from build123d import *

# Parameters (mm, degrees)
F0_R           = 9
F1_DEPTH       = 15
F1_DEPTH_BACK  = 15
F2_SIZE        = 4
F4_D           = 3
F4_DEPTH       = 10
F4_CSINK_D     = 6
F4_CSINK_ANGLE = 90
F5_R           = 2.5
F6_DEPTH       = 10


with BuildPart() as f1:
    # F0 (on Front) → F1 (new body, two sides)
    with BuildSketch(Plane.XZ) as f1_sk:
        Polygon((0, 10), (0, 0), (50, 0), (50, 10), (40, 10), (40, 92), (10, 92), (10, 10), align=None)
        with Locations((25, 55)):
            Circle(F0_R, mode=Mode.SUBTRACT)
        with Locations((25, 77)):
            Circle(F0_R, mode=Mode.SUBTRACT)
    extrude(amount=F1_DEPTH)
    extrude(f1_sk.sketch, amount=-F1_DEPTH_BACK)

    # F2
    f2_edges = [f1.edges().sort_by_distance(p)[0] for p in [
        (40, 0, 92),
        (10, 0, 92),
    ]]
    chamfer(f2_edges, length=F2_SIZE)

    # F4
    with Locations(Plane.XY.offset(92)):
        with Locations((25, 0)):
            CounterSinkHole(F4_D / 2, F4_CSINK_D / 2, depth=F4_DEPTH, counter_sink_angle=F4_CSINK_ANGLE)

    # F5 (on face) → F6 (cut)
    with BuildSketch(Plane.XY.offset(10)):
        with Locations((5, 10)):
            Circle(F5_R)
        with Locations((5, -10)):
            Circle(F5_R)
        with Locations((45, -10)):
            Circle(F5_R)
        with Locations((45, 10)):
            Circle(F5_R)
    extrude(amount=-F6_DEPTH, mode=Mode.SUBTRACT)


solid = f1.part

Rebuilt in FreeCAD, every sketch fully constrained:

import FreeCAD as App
import Part
import Sketcher


def edges_at(feature, points):
    """Names of the edges that pass closest to the given points."""
    edges = feature.Shape.Edges
    near = lambda p: min(range(len(edges)), key=lambda i: edges[i].distToShape(Part.Vertex(*p))[0])
    return sorted({f"Edge{near(p) + 1}" for p in points})


def add_polygon(sketch, points):
    """Adds a closed chain of lines whose ends are joined by coincident constraints."""
    first, n = sketch.GeometryCount, len(points)
    for a, b in zip(points, points[1:] + points[:1]):
        sketch.addGeometry(Part.LineSegment(App.Vector(*a, 0), App.Vector(*b, 0)), False)
    for i in range(n):
        sketch.addConstraint(Sketcher.Constraint("Coincident", first + i, 2, first + (i + 1) % n, 1))

doc = App.newDocument("Part")
params = doc.addObject("Spreadsheet::Sheet", "Params")
for row, (alias, value) in enumerate([
    ("sketch1_diameter", "18 mm"),
    ("sketch1_width", "50 mm"),
    ("sketch1_width2", "10 mm"),
    ("sketch1_height", "82 mm"),
    ("pad1_length", "15 mm"),
    ("pad1_length2", "15 mm"),
    ("chamfer_size", "4 mm"),
    ("sketch2_diameter", "3 mm"),
    ("hole_diameter", "3 mm"),
    ("hole_depth", "10 mm"),
    ("hole_csink_diameter", "6 mm"),
    ("sketch3_diameter", "5 mm"),
    ("pocket1_length", "10 mm"),
], start=1):
    params.set(f"A{row}", alias)
    params.set(f"B{row}", "=" + value)
    params.setAlias(f"B{row}", alias)

body = doc.addObject("PartDesign::Body", "Body")

sketch1 = body.newObject("Sketcher::SketchObject", "Sketch")
sketch1.AttachmentSupport = (doc.getObject("XZ_Plane"), [""])
sketch1.MapMode = "FlatFace"
add_polygon(sketch1, [(0, 10), (0, 0), (50, 0), (50, 10), (40, 10), (40, 92), (10, 92), (10, 10)])
sketch1.addGeometry(Part.Circle(App.Vector(25, 55, 0), App.Vector(0, 0, 1), 9), False)
sketch1.addGeometry(Part.Circle(App.Vector(25, 77, 0), App.Vector(0, 0, 1), 9), False)
sketch1.addConstraint([
    Sketcher.Constraint("Vertical", 0),
    Sketcher.Constraint("Horizontal", 1),
    Sketcher.Constraint("Vertical", 2),
    Sketcher.Constraint("Horizontal", 3),
    Sketcher.Constraint("Vertical", 4),
    Sketcher.Constraint("Horizontal", 5),
    Sketcher.Constraint("Vertical", 6),
    Sketcher.Constraint("Horizontal", 7),
    Sketcher.Constraint("Coincident", 0, 2, -1, 1),
    Sketcher.Constraint("Equal", 8, 9),
    Sketcher.Constraint("Horizontal", 3, 2, 6, 2),
    Sketcher.Constraint("Vertical", 8, 3, 9, 3),
    Sketcher.Constraint("Equal", 3, 7),
    Sketcher.Constraint("Equal", 7, 0),
    Sketcher.Constraint("Diameter", 8, 18.0),
    Sketcher.Constraint("DistanceX", 1, 1, 1, 2, 50.0),
    Sketcher.Constraint("DistanceX", 3, 2, 3, 1, 10.0),
    Sketcher.Constraint("DistanceY", 4, 1, 4, 2, 82.0),
    Sketcher.Constraint("DistanceX", -1, 1, 8, 3, 25.0),
    Sketcher.Constraint("DistanceY", -1, 1, 8, 3, 55.0),
    Sketcher.Constraint("DistanceY", -1, 1, 9, 3, 77.0),
])
sketch1.setExpression("Constraints[22]", "Params.sketch1_diameter")
sketch1.setExpression("Constraints[23]", "Params.sketch1_width")
sketch1.setExpression("Constraints[24]", "Params.sketch1_width2")
sketch1.setExpression("Constraints[25]", "Params.sketch1_height")
pad1 = body.newObject("PartDesign::Pad", "Pad")
pad1.Profile = sketch1
pad1.Type = "TwoLengths"
pad1.setExpression("Length", "Params.pad1_length")
pad1.setExpression("Length2", "Params.pad1_length2")
doc.recompute()

chamfer = body.newObject("PartDesign::Chamfer", "Chamfer")
chamfer.Base = (pad1, edges_at(pad1, [(40, 0, 92), (10, 0, 92)]))
chamfer.setExpression("Size", "Params.chamfer_size")

sketch2 = body.newObject("Sketcher::SketchObject", "Sketch001")
sketch2.AttachmentSupport = (doc.getObject("XY_Plane"), [""])
sketch2.MapMode = "FlatFace"
sketch2.AttachmentOffset = App.Placement(App.Vector(0, 0, 92), App.Rotation())
sketch2.addGeometry(Part.Circle(App.Vector(25, 0, 0), App.Vector(0, 0, 1), 1.5), False)
sketch2.addConstraint([
    Sketcher.Constraint("PointOnObject", 0, 3, -1),
    Sketcher.Constraint("Diameter", 0, 3.0),
    Sketcher.Constraint("DistanceX", -1, 1, 0, 3, 25.0),
])
sketch2.setExpression("Constraints[1]", "Params.sketch2_diameter")
doc.recompute()
hole = body.newObject("PartDesign::Hole", "Hole")
hole.Profile = sketch2
hole.ThreadType = "None"
hole.setExpression("Diameter", "Params.hole_diameter")
hole.DepthType = "Dimension"
hole.setExpression("Depth", "Params.hole_depth")
hole.DrillPoint = "Flat"
hole.HoleCutType = "Countersink"
hole.setExpression("HoleCutDiameter", "Params.hole_csink_diameter")
hole.HoleCutCountersinkAngle = 90

sketch3 = body.newObject("Sketcher::SketchObject", "Sketch002")
sketch3.AttachmentSupport = (doc.getObject("XY_Plane"), [""])
sketch3.MapMode = "FlatFace"
sketch3.AttachmentOffset = App.Placement(App.Vector(0, 0, 10), App.Rotation())
sketch3.addGeometry([
    Part.Circle(App.Vector(5, 10, 0), App.Vector(0, 0, 1), 2.5),
    Part.Circle(App.Vector(5, -10, 0), App.Vector(0, 0, 1), 2.5),
    Part.Circle(App.Vector(45, -10, 0), App.Vector(0, 0, 1), 2.5),
    Part.Circle(App.Vector(45, 10, 0), App.Vector(0, 0, 1), 2.5),
], False)
sketch3.addConstraint([
    Sketcher.Constraint("Equal", 0, 1),
    Sketcher.Constraint("Equal", 1, 2),
    Sketcher.Constraint("Equal", 2, 3),
    Sketcher.Constraint("Symmetric", 0, 3, 1, 3, -1),
    Sketcher.Constraint("Symmetric", 2, 3, 3, 3, -1),
    Sketcher.Constraint("Horizontal", 1, 3, 2, 3),
    Sketcher.Constraint("Diameter", 0, 5.0),
    Sketcher.Constraint("DistanceX", -1, 1, 0, 3, 5.0),
    Sketcher.Constraint("DistanceY", -1, 1, 0, 3, 10.0),
    Sketcher.Constraint("DistanceX", -1, 1, 2, 3, 45.0),
])
sketch3.setExpression("Constraints[6]", "Params.sketch3_diameter")
pocket1 = body.newObject("PartDesign::Pocket", "Pocket")
pocket1.Profile = sketch3
pocket1.setExpression("Length", "Params.pocket1_length")

doc.recompute()
